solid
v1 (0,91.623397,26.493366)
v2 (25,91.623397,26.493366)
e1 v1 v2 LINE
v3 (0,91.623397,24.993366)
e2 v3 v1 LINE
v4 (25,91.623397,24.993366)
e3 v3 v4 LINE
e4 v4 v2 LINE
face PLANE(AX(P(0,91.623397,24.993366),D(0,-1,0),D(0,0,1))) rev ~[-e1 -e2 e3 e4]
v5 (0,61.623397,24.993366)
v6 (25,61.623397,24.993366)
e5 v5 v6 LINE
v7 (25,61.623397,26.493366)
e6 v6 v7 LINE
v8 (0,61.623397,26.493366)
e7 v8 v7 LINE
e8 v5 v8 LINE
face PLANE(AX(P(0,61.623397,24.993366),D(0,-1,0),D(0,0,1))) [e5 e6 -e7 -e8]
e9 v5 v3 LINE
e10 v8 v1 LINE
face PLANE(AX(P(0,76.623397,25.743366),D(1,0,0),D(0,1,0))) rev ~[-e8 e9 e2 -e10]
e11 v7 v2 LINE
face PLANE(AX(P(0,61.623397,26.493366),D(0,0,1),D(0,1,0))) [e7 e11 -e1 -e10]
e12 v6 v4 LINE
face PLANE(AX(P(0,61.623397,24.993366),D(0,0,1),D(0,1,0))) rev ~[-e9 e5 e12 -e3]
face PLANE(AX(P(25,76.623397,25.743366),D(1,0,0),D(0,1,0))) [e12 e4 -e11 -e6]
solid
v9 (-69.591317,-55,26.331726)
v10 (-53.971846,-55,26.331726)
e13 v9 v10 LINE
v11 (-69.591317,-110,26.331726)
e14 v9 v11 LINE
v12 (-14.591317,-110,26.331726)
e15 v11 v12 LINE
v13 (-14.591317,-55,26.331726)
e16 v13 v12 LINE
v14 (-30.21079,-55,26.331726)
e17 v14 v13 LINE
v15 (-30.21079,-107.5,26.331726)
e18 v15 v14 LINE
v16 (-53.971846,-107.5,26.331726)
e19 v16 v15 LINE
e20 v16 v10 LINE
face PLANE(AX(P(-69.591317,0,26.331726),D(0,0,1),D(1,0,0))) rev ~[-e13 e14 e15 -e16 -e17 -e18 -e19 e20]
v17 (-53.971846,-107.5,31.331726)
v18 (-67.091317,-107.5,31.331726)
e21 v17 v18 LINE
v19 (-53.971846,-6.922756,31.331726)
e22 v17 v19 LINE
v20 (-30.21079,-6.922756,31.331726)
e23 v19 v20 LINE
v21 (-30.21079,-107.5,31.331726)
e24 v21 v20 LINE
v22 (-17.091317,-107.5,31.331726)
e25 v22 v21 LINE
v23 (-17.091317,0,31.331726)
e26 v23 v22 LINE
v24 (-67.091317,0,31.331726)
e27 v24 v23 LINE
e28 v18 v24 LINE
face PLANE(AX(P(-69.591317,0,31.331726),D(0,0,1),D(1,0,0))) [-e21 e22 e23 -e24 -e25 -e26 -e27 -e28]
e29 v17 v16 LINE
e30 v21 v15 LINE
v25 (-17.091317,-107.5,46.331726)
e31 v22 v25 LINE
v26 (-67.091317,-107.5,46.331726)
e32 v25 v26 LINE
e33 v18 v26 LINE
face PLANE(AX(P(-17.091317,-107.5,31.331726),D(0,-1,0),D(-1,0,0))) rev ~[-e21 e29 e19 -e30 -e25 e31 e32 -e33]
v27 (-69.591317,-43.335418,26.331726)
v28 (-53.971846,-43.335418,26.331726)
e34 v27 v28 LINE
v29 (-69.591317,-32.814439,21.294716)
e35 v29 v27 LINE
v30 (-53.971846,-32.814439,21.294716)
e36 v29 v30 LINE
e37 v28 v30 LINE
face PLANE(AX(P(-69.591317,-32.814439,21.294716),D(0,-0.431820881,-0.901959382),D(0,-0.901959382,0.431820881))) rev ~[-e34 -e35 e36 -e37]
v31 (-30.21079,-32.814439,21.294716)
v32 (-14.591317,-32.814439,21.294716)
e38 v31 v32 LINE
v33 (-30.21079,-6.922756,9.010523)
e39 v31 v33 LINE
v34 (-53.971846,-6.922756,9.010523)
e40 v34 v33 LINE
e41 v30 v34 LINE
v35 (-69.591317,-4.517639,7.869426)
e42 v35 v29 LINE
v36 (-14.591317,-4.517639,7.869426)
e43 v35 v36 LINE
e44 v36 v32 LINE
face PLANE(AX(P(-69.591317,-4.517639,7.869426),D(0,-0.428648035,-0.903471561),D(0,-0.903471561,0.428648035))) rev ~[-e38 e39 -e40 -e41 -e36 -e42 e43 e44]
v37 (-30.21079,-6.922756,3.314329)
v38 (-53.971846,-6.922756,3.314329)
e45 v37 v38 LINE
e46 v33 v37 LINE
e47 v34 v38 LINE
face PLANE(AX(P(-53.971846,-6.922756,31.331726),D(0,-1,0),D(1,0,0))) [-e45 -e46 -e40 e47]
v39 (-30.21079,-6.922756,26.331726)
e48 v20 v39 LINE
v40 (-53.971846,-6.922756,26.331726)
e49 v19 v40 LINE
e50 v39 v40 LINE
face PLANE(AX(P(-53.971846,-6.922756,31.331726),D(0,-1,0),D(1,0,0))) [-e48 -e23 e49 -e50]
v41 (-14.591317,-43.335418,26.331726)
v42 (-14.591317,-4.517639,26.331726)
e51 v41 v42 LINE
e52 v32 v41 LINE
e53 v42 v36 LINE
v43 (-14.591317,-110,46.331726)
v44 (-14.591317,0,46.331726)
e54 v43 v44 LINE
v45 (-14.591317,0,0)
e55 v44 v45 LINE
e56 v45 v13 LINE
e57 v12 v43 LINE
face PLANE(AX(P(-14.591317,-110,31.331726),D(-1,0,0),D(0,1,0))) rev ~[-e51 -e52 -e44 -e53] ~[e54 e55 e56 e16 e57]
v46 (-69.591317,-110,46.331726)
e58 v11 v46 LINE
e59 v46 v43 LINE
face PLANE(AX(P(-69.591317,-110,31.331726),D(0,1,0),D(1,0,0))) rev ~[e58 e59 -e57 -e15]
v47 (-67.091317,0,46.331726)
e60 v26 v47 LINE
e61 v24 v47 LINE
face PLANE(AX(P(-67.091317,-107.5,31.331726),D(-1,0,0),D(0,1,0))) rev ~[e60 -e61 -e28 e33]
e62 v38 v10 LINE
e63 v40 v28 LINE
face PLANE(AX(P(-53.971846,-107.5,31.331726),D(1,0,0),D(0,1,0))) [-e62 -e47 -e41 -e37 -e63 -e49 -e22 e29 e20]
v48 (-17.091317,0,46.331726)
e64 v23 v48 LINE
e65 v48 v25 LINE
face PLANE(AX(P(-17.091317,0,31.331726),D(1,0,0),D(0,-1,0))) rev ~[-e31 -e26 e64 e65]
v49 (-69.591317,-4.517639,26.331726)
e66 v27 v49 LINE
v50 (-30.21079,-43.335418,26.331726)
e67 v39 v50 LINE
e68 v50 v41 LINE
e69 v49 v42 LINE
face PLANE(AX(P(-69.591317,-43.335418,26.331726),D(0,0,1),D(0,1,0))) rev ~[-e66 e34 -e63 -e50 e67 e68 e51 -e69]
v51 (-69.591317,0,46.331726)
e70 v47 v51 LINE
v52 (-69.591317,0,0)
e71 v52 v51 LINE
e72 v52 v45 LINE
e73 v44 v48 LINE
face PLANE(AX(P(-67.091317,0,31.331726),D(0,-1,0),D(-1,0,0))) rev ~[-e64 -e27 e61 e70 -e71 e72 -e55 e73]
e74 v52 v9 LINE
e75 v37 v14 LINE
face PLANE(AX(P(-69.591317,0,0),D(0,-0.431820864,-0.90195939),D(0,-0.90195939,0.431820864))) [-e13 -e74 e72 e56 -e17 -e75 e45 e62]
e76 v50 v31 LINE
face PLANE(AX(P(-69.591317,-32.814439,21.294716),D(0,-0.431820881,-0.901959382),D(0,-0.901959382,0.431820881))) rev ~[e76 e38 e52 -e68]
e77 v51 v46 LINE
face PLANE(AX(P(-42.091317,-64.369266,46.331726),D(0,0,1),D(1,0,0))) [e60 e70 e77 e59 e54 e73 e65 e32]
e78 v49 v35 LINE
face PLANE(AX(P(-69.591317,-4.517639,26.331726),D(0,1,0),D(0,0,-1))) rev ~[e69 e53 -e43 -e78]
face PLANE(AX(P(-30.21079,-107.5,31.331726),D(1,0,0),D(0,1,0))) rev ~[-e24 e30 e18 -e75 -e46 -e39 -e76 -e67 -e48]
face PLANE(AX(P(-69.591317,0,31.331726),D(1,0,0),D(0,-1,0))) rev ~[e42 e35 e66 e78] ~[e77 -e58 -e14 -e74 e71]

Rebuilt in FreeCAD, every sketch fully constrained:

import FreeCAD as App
import Part
import Sketcher

V = App.Vector
Q = App.Units.Quantity


def add_polygon(sketch, points):
    """Adds a closed chain of lines whose ends are joined by coincident constraints."""
    first, n = sketch.GeometryCount, len(points)
    for a, b in zip(points, points[1:] + points[:1]):
        sketch.addGeometry(Part.LineSegment(App.Vector(*a, 0), App.Vector(*b, 0)), False)
    for i in range(n):
        sketch.addConstraint(Sketcher.Constraint("Coincident", first + i, 2, first + (i + 1) % n, 1))

doc = App.newDocument("Part")
body = doc.addObject("PartDesign::Body", "Body")

sketch1 = body.newObject("Sketcher::SketchObject", "Sketch")
sketch1.AttachmentSupport = (doc.getObject("XZ_Plane"), [""])
sketch1.MapMode = "FlatFace"
add_polygon(sketch1, [(-69.591317, 31.331726), (-69.591317, 26.331726), (-14.591317, 26.331726), (-14.591317, 31.331726)])
sketch1.addConstraint([
    Sketcher.Constraint("Vertical", 0),
    Sketcher.Constraint("Horizontal", 1),
    Sketcher.Constraint("Vertical", 2),
    Sketcher.Constraint("Horizontal", 3),
    Sketcher.Constraint("DistanceX", 1, 1, 1, 2, Q("55 mm")),
    Sketcher.Constraint("DistanceY", 0, 2, 0, 1, Q("5 mm")),
    Sketcher.Constraint("DistanceX", 0, 2, -1, 1, Q("69.591317 mm")),
    Sketcher.Constraint("DistanceY", -1, 1, 0, 2, Q("26.331726 mm")),
])
pad1 = body.newObject("PartDesign::Pad", "Pad")
pad1.Profile = sketch1
pad1.Length = 110

sketch2 = body.newObject("Sketcher::SketchObject", "Sketch001")
sketch2.AttachmentSupport = (doc.getObject("YZ_Plane"), [""])
sketch2.MapMode = "FlatFace"
sketch2.AttachmentOffset = App.Placement(V(0, 0, -69.591317), App.Rotation())
add_polygon(sketch2, [(-55, 26.331726), (0, 26.331726), (0, 0)])
sketch2.addConstraint([
    Sketcher.Constraint("Horizontal", 0),
    Sketcher.Constraint("Vertical", 1),
    Sketcher.Constraint("Coincident", 1, 2, -1, 1),
    Sketcher.Constraint("DistanceX", 0, 1, 0, 2, Q("55 mm")),
    Sketcher.Constraint("DistanceY", 1, 2, 1, 1, Q("26.331726 mm")),
])
pad2 = body.newObject("PartDesign::Pad", "Pad001")
pad2.Profile = sketch2
pad2.Length = 55

sketch3 = body.newObject("Sketcher::SketchObject", "Sketch002")
sketch3.AttachmentSupport = (doc.getObject("XY_Plane"), [""])
sketch3.MapMode = "FlatFace"
sketch3.AttachmentOffset = App.Placement(V(0, 0, 31.331726), App.Rotation())
add_polygon(sketch3, [(-67.091317, -107.5), (-67.091317, 0), (-69.591317, 0), (-69.591317, -110), (-14.591317, -110), (-14.591317, 0), (-17.091317, 0), (-17.091317, -107.5)])
sketch3.addConstraint([
    Sketcher.Constraint("Vertical", 0),
    Sketcher.Constraint("Horizontal", 1),
    Sketcher.Constraint("Vertical", 2),
    Sketcher.Constraint("Horizontal", 3),
    Sketcher.Constraint("Vertical", 4),
    Sketcher.Constraint("Horizontal", 5),
    Sketcher.Constraint("Vertical", 6),
    Sketcher.Constraint("Horizontal", 7),
    Sketcher.Constraint("PointOnObject", 0, 2, -1),
    Sketcher.Constraint("PointOnObject", 4, 2, -1),
    Sketcher.Constraint("Equal", 1, 5),
    Sketcher.Constraint("DistanceX", 3, 1, 3, 2, Q("55 mm")),
    Sketcher.Constraint("DistanceX", 7, 2, 7, 1, Q("50 mm")),
    Sketcher.Constraint("DistanceY", 2, 2, 2, 1, Q("110 mm")),
    Sketcher.Constraint("DistanceY", 0, 1, 0, 2, Q("107.5 mm")),
    Sketcher.Constraint("DistanceX", 0, 2, -1, 1, Q("67.091317 mm")),
])
pad3 = body.newObject("PartDesign::Pad", "Pad002")
pad3.Profile = sketch3
pad3.Length = 15

sketch4 = body.newObject("Sketcher::SketchObject", "Sketch003")
sketch4.AttachmentSupport = (doc.getObject("XY_Plane"), [""])
sketch4.MapMode = "FlatFace"
sketch4.AttachmentOffset = App.Placement(V(0, 0, 31.331726), App.Rotation())
add_polygon(sketch4, [(-53.971846, -6.922756), (-53.971846, -107.5), (-30.21079, -107.5), (-30.21079, -6.922756)])
sketch4.addConstraint([
    Sketcher.Constraint("Vertical", 0),
    Sketcher.Constraint("Horizontal", 1),
    Sketcher.Constraint("Vertical", 2),
    Sketcher.Constraint("Horizontal", 3),
    Sketcher.Constraint("DistanceY", 0, 2, -1, 1, Q("107.5 mm")),
    Sketcher.Constraint("DistanceX", 1, 1, 1, 2, Q("23.761057 mm")),
    Sketcher.Constraint("DistanceY", 0, 2, 0, 1, Q("100.577244 mm")),
    Sketcher.Constraint("DistanceX", 1, 2, -1, 1, Q("30.21079 mm")),
])
pocket1 = body.newObject("PartDesign::Pocket", "Pocket")
pocket1.Profile = sketch4
pocket1.Type = "ThroughAll"

sketch5 = body.newObject("Sketcher::SketchObject", "Sketch004")
sketch5.AttachmentSupport = (doc.getObject("YZ_Plane"), [""])
sketch5.MapMode = "FlatFace"
sketch5.AttachmentOffset = App.Placement(V(0, 0, -69.591317), App.Rotation())
add_polygon(sketch5, [(-32.814439, 21.294716), (-43.335418, 26.331726), (-4.517639, 26.331726), (-4.517639, 7.869426)])
sketch5.addConstraint([
    Sketcher.Constraint("Horizontal", 1),
    Sketcher.Constraint("Vertical", 2),
    Sketcher.Constraint("DistanceY", 2, 2, 2, 1, Q("18.4623 mm")),
    Sketcher.Constraint("DistanceX", 1, 1, 1, 2, Q("38.817779 mm")),
    Sketcher.Constraint("DistanceX", 3, 2, 1, 2, Q("28.2968 mm")),
    Sketcher.Constraint("Distance", 0, Q("11.664582 mm")),
    Sketcher.Constraint("DistanceX", 1, 2, -1, 1, Q("4.517639 mm")),
    Sketcher.Constraint("DistanceY", -1, 1, 0, 2, Q("26.331726 mm")),
])
pocket2 = body.newObject("PartDesign::Pocket", "Pocket001")
pocket2.Profile = sketch5
pocket2.Type = "ThroughAll"
pocket2.Reversed = True
body2 = doc.addObject("PartDesign::Body", "Body001")

sketch6 = body2.newObject("Sketcher::SketchObject", "Sketch005")
sketch6.AttachmentSupport = (doc.getObject("YZ_Plane001"), [""])
sketch6.MapMode = "FlatFace"
add_polygon(sketch6, [(61.623397, 26.493366), (61.623397, 24.993366), (91.623397, 24.993366), (91.623397, 26.493366)])
sketch6.addConstraint([
    Sketcher.Constraint("Vertical", 0),
    Sketcher.Constraint("Horizontal", 1),
    Sketcher.Constraint("Vertical", 2),
    Sketcher.Constraint("Horizontal", 3),
    Sketcher.Constraint("DistanceX", 1, 1, 1, 2, Q("30 mm")),
    Sketcher.Constraint("DistanceY", 0, 2, 0, 1, Q("1.5 mm")),
    Sketcher.Constraint("DistanceX", -1, 1, 0, 2, Q("61.623397 mm")),
    Sketcher.Constraint("DistanceY", -1, 1, 0, 2, Q("24.993366 mm")),
])
pad4 = body2.newObject("PartDesign::Pad", "Pad003")
pad4.Profile = sketch6
pad4.Length = 25

doc.recompute()
